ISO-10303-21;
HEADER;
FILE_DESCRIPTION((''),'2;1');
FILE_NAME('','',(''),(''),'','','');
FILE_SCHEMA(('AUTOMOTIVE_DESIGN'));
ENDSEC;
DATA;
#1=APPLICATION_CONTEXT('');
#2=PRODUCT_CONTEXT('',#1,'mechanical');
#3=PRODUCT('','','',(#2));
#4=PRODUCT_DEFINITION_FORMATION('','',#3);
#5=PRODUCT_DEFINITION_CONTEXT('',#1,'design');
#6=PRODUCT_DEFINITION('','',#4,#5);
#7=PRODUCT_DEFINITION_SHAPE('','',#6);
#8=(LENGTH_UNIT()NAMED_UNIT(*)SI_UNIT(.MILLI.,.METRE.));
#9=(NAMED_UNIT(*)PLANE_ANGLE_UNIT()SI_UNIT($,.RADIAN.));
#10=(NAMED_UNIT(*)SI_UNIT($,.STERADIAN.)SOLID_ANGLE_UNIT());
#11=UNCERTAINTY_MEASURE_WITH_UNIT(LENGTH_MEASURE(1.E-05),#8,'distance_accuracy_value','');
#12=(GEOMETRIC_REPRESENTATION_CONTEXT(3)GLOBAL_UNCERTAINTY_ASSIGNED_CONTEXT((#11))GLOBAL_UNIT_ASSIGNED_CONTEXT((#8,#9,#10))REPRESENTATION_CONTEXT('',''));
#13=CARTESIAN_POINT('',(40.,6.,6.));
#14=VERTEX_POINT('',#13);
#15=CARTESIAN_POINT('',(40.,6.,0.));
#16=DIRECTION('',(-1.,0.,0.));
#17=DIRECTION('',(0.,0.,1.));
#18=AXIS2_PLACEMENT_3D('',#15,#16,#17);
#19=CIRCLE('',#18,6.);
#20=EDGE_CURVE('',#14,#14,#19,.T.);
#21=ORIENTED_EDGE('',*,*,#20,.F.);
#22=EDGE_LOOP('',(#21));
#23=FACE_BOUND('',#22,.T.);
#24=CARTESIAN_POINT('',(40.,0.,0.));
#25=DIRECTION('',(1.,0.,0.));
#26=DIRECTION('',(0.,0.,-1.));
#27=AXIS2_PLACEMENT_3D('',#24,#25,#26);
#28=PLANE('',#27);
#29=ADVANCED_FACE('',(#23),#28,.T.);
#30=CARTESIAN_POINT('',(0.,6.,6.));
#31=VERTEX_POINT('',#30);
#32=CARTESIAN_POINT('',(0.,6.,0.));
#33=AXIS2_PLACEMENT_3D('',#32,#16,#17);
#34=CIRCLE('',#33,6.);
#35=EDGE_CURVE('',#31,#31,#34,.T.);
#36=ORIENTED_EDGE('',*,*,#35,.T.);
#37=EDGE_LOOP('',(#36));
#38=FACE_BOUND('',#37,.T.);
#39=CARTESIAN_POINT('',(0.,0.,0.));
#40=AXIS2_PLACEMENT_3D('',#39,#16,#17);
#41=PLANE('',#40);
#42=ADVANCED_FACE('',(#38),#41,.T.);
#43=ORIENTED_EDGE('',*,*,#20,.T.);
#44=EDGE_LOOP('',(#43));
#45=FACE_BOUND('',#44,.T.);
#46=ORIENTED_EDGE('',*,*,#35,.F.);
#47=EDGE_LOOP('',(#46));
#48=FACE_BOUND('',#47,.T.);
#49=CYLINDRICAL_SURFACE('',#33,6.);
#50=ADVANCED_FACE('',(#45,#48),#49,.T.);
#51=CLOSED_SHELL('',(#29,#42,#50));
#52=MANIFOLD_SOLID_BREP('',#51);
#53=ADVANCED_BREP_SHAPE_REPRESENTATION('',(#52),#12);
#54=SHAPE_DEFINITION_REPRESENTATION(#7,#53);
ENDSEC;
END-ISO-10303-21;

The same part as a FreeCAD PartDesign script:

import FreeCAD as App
import Part
import Sketcher

doc = App.newDocument("Part")
body = doc.addObject("PartDesign::Body", "Body")

sketch1 = body.newObject("Sketcher::SketchObject", "Sketch")
sketch1.AttachmentSupport = (doc.getObject("XY_Plane"), [""])
sketch1.MapMode = "FlatFace"
sketch1.addGeometry(Part.LineSegment(App.Vector(0, 6, 0), App.Vector(0, 0, 0)), False)
sketch1.addGeometry(Part.LineSegment(App.Vector(0, 0, 0), App.Vector(40, 0, 0)), False)
sketch1.addGeometry(Part.LineSegment(App.Vector(40, 0, 0), App.Vector(40, 6, 0)), False)
sketch1.addGeometry(Part.LineSegment(App.Vector(40, 6, 0), App.Vector(0, 6, 0)), False)
sketch1.addGeometry(Part.LineSegment(App.Vector(0, 6, 0), App.Vector(40, 6, 0)), True)
sketch1.addConstraint(Sketcher.Constraint("Coincident", 0, 2, 1, 1))
sketch1.addConstraint(Sketcher.Constraint("Coincident", 1, 2, 2, 1))
sketch1.addConstraint(Sketcher.Constraint("Coincident", 2, 2, 3, 1))
sketch1.addConstraint(Sketcher.Constraint("Coincident", 3, 2, 0, 1))
sketch1.addConstraint(Sketcher.Constraint("Vertical", 0))
sketch1.addConstraint(Sketcher.Constraint("Horizontal", 1))
sketch1.addConstraint(Sketcher.Constraint("Vertical", 2))
sketch1.addConstraint(Sketcher.Constraint("Horizontal", 3))
sketch1.addConstraint(Sketcher.Constraint("Horizontal", 4))
sketch1.addConstraint(Sketcher.Constraint("Coincident", 0, 2, -1, 1))
sketch1.addConstraint(Sketcher.Constraint("Coincident", 4, 1, 3, 2))
sketch1.addConstraint(Sketcher.Constraint("Vertical", 1, 2, 4, 2))
sketch1.addConstraint(Sketcher.Constraint("DistanceX", 1, 1, 1, 2, 40.0))
sketch1.addConstraint(Sketcher.Constraint("DistanceY", 0, 2, 0, 1, 6.0))
revolution = body.newObject("PartDesign::Revolution", "Revolution")
revolution.Profile = sketch1
revolution.ReferenceAxis = (sketch1, ["Axis0"])
revolution.Angle = 360

doc.recompute()
